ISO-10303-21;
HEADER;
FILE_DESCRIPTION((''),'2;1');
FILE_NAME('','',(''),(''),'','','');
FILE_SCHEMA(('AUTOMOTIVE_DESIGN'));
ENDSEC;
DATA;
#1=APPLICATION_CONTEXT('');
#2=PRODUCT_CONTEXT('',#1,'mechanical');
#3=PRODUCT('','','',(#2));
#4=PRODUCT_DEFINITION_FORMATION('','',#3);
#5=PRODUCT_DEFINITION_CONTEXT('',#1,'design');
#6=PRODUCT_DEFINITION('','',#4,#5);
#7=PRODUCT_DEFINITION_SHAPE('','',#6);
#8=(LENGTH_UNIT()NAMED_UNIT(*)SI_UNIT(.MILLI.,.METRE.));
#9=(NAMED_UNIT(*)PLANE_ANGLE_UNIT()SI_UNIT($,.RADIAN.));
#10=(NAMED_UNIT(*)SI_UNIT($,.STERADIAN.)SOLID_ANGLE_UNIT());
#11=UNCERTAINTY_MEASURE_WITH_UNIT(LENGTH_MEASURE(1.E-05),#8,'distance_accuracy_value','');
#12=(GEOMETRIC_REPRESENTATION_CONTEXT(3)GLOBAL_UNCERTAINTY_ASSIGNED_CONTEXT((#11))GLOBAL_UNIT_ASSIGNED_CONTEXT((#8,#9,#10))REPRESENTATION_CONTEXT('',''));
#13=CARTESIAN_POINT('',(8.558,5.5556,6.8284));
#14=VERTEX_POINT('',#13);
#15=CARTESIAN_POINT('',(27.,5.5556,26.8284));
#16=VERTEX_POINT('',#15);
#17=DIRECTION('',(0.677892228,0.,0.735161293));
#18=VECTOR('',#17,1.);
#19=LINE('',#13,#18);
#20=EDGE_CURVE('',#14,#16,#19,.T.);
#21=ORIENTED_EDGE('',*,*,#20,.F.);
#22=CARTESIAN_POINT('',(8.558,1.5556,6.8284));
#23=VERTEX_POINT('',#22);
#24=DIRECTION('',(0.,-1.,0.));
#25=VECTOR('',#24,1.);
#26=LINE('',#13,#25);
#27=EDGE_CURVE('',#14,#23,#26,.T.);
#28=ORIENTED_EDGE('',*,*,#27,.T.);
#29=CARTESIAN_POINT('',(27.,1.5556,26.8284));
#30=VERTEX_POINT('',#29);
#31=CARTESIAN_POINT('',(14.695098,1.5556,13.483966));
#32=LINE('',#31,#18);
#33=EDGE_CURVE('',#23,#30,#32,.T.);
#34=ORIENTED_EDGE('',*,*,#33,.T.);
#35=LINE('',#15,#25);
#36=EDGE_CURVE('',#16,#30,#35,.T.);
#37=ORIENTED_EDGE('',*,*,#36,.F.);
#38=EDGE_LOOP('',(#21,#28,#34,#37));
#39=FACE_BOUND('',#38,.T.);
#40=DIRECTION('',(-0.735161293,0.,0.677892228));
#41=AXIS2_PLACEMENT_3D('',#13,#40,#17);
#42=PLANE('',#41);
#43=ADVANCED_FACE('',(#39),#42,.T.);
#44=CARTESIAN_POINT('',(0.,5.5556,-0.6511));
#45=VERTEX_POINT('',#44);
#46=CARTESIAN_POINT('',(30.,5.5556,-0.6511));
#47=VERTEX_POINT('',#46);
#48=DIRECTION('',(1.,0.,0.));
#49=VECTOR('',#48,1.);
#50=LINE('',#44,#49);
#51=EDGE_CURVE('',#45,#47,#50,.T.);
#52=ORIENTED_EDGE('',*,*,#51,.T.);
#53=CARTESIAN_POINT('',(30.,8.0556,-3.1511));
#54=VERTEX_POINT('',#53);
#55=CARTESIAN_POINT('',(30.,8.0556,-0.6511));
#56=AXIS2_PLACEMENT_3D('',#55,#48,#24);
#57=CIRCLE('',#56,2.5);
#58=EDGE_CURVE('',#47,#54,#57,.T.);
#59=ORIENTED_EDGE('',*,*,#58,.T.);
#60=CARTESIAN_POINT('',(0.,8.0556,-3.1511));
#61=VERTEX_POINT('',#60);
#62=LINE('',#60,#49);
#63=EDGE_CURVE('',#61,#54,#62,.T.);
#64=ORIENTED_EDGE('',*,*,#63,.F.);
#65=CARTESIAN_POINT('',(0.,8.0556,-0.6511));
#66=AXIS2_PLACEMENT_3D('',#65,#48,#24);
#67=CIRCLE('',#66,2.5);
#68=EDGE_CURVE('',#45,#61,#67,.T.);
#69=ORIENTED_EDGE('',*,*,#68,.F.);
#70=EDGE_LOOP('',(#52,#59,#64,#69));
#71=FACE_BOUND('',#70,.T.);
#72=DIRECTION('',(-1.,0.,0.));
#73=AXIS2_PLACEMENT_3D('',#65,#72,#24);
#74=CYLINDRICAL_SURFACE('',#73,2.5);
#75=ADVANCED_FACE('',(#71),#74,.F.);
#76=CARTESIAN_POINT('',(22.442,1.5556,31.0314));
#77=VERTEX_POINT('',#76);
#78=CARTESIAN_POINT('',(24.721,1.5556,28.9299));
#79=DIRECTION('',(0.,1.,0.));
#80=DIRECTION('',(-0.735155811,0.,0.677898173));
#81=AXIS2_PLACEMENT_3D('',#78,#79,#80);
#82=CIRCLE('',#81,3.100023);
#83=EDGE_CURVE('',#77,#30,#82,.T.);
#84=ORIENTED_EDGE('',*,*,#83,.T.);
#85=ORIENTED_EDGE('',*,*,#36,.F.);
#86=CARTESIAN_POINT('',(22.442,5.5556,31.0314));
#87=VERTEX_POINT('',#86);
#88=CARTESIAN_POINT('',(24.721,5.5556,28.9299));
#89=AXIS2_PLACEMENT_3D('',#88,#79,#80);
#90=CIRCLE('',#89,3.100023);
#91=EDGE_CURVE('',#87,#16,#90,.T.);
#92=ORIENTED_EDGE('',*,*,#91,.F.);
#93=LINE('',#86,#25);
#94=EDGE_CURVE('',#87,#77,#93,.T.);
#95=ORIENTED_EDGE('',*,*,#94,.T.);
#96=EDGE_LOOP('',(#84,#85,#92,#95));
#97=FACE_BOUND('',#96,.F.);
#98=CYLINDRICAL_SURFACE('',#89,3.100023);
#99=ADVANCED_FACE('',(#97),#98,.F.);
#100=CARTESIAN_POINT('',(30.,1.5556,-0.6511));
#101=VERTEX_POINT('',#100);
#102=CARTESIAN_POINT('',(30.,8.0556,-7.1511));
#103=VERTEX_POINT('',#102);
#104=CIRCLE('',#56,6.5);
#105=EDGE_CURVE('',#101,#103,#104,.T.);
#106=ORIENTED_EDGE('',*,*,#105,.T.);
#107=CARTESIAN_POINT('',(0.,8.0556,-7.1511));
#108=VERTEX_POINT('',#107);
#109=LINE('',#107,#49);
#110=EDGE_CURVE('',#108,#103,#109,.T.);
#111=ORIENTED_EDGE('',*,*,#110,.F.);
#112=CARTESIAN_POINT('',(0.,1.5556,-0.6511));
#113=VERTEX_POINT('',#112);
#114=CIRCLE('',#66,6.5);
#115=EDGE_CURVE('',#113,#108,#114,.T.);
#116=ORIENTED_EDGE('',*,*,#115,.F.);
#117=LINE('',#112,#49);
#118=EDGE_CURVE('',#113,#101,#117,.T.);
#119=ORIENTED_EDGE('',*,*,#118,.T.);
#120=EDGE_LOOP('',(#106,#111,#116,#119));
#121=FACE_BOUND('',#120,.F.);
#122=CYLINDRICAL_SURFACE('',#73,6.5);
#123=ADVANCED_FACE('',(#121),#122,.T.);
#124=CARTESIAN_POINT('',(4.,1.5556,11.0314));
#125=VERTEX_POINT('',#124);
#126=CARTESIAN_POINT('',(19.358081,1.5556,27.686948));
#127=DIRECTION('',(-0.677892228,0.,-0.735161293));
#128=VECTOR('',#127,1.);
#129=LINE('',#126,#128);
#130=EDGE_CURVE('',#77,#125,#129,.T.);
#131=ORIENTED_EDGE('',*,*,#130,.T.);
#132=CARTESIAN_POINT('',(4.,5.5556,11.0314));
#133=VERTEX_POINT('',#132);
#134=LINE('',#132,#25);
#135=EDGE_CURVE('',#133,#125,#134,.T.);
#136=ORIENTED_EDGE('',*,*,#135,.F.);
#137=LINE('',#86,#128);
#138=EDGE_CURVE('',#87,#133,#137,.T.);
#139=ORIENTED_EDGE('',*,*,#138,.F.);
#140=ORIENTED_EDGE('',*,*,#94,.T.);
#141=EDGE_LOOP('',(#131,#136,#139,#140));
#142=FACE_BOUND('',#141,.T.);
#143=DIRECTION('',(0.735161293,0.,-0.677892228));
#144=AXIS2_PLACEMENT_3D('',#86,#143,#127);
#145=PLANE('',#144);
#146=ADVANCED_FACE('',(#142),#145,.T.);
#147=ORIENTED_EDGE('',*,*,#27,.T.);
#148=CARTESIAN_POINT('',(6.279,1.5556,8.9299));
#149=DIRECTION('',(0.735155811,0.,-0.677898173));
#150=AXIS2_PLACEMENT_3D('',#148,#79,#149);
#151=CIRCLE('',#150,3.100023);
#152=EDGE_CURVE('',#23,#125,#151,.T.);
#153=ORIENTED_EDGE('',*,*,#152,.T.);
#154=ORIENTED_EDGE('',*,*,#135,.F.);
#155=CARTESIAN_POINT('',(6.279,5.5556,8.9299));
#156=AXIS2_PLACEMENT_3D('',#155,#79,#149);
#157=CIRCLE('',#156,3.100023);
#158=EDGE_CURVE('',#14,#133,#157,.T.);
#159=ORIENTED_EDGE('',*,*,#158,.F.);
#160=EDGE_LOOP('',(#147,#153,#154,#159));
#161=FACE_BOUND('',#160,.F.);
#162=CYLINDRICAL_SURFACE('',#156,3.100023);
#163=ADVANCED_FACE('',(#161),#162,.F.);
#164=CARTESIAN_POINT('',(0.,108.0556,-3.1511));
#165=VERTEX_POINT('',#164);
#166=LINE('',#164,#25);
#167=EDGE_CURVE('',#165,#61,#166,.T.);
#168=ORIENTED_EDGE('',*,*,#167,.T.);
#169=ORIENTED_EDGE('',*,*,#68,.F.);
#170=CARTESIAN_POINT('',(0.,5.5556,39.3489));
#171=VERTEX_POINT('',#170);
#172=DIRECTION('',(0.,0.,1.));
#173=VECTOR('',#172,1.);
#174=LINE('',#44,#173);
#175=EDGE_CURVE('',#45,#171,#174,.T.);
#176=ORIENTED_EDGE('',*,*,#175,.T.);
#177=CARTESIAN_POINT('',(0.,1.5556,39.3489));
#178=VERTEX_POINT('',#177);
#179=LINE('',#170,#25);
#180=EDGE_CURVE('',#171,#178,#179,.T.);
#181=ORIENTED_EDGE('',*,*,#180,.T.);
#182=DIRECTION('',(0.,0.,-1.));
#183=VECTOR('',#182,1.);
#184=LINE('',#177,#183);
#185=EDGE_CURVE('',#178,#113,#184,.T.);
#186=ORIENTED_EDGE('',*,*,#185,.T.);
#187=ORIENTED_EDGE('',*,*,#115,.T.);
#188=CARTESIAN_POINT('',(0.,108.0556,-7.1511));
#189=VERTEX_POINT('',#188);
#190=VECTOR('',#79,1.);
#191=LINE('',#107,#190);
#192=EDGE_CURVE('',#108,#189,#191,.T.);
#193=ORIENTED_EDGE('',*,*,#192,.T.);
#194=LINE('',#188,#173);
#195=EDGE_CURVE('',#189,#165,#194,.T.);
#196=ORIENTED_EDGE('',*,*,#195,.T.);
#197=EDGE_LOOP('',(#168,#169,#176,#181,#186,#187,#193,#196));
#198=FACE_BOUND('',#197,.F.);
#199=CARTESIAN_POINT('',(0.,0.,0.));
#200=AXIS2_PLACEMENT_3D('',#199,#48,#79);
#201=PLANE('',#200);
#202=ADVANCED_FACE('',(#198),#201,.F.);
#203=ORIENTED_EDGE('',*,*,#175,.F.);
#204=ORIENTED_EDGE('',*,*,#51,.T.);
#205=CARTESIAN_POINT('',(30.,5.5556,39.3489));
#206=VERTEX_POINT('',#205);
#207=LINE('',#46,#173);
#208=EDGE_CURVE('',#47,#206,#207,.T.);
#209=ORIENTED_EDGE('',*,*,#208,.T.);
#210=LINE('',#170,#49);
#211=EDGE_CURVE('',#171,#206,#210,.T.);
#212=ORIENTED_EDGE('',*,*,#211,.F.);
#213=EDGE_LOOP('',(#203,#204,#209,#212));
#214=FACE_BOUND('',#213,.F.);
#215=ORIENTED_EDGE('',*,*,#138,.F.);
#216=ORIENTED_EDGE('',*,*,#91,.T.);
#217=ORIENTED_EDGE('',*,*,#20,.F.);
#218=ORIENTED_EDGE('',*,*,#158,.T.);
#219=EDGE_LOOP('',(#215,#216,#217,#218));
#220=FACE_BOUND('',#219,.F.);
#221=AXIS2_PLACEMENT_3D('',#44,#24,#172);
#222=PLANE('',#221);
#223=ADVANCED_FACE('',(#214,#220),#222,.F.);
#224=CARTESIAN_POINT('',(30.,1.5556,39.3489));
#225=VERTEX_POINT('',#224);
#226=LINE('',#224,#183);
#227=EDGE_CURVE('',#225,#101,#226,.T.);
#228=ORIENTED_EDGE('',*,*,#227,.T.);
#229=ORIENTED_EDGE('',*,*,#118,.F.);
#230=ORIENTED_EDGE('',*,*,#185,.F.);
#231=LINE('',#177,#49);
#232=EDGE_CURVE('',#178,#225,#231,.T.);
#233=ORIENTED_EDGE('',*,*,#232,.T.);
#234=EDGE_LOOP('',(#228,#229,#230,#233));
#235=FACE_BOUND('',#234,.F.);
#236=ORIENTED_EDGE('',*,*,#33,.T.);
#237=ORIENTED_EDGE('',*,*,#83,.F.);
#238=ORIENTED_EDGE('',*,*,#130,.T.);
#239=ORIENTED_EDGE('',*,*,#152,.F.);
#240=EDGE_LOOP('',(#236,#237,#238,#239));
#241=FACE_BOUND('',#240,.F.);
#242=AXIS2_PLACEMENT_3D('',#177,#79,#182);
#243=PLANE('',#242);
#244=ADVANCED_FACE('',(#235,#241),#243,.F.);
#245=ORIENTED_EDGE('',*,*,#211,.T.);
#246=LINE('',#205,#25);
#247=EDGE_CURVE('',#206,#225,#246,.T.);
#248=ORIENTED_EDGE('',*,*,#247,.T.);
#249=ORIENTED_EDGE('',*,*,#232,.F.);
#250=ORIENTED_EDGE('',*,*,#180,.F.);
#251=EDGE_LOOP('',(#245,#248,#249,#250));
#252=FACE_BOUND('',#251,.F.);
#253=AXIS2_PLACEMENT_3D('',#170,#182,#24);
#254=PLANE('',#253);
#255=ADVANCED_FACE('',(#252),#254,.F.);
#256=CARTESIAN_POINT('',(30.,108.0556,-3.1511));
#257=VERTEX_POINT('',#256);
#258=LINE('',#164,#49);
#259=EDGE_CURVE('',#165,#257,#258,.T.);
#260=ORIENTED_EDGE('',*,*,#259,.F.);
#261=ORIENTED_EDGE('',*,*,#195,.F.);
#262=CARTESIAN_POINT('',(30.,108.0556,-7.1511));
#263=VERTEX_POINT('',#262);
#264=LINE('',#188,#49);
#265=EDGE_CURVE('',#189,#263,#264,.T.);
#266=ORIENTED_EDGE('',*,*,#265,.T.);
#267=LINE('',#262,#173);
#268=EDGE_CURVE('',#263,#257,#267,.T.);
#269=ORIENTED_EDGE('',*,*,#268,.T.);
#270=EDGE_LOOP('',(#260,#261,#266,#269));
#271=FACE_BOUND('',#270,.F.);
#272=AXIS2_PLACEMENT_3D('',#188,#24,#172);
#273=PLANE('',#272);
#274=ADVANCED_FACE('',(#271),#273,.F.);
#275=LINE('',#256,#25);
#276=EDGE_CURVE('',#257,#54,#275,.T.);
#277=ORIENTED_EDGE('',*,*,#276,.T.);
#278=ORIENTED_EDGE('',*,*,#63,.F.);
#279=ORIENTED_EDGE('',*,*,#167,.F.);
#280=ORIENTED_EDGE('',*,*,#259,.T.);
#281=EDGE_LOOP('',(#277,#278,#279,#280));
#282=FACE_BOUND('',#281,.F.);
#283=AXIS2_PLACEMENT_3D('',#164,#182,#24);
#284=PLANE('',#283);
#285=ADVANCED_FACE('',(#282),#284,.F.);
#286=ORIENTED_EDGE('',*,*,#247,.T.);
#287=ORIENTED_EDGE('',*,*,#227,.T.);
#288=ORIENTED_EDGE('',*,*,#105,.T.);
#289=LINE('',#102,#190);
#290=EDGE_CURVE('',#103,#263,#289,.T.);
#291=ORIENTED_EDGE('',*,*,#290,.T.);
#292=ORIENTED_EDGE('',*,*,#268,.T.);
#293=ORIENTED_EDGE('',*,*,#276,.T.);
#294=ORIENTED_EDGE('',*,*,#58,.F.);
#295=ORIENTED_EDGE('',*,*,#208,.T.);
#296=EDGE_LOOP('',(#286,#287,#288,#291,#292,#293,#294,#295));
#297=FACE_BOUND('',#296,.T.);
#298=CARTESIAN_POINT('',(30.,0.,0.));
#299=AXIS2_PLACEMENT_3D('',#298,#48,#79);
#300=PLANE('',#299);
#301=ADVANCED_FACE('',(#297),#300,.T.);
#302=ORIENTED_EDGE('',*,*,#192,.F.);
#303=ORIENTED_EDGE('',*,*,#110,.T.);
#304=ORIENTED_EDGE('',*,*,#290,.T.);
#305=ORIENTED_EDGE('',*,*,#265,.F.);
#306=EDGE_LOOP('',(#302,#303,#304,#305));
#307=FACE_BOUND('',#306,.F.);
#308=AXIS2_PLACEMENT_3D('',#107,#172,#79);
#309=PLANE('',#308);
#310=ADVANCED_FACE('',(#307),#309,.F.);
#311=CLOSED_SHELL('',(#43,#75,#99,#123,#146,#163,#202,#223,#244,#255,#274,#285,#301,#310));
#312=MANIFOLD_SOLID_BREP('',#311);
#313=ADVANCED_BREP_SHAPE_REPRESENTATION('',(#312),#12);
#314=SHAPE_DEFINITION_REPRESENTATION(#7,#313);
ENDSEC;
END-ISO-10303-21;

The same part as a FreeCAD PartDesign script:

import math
import FreeCAD as App
import Part
import Sketcher
Q = App.Units.Quantity

doc = App.newDocument("Part")
body = doc.addObject("PartDesign::Body", "Body")

sketch1 = body.newObject("Sketcher::SketchObject", "Sketch")
sketch1.AttachmentSupport = (doc.getObject("YZ_Plane"), [""])
sketch1.MapMode = "FlatFace"
sketch1.addGeometry(Part.LineSegment(App.Vector(108.0556, -7.1511, 0), App.Vector(108.0556, -3.1511, 0)), False)
sketch1.addGeometry(Part.LineSegment(App.Vector(108.0556, -3.1511, 0), App.Vector(8.0556, -3.1511, 0)), False)
sketch1.addGeometry(Part.ArcOfCircle(Part.Circle(App.Vector(8.0556, -0.6511, 0), App.Vector(0, 0, 1), 2.5), math.radians(180), math.radians(270)), False)
sketch1.addGeometry(Part.LineSegment(App.Vector(5.5556, -0.6511, 0), App.Vector(5.5556, 39.3489, 0)), False)
sketch1.addGeometry(Part.LineSegment(App.Vector(5.5556, 39.3489, 0), App.Vector(1.5556, 39.3489, 0)), False)
sketch1.addGeometry(Part.LineSegment(App.Vector(1.5556, 39.3489, 0), App.Vector(1.5556, -0.6511, 0)), False)
sketch1.addGeometry(Part.ArcOfCircle(Part.Circle(App.Vector(8.0556, -0.6511, 0), App.Vector(0, 0, 1), 6.5), math.radians(180), math.radians(270)), False)
sketch1.addGeometry(Part.LineSegment(App.Vector(8.0556, -7.1511, 0), App.Vector(108.0556, -7.1511, 0)), False)
sketch1.addConstraint(Sketcher.Constraint("Coincident", 0, 2, 1, 1))
sketch1.addConstraint(Sketcher.Constraint("Tangent", 1, 2, 2, 2))
sketch1.addConstraint(Sketcher.Constraint("Tangent", 2, 1, 3, 1))
sketch1.addConstraint(Sketcher.Constraint("Coincident", 3, 2, 4, 1))
sketch1.addConstraint(Sketcher.Constraint("Coincident", 4, 2, 5, 1))
sketch1.addConstraint(Sketcher.Constraint("Tangent", 5, 2, 6, 1))
sketch1.addConstraint(Sketcher.Constraint("Tangent", 6, 2, 7, 1))
sketch1.addConstraint(Sketcher.Constraint("Coincident", 7, 2, 0, 1))
sketch1.addConstraint(Sketcher.Constraint("Vertical", 0))
sketch1.addConstraint(Sketcher.Constraint("Horizontal", 1))
sketch1.addConstraint(Sketcher.Constraint("Vertical", 3))
sketch1.addConstraint(Sketcher.Constraint("Horizontal", 4))
sketch1.addConstraint(Sketcher.Constraint("Vertical", 5))
sketch1.addConstraint(Sketcher.Constraint("Horizontal", 7))
sketch1.addConstraint(Sketcher.Constraint("Coincident", 6, 3, 2, 3))
sketch1.addConstraint(Sketcher.Constraint("Radius", 2, Q("2.5 mm")))
sketch1.addConstraint(Sketcher.Constraint("Radius", 6, Q("6.5 mm")))
sketch1.addConstraint(Sketcher.Constraint("DistanceX", 1, 2, 1, 1, Q("100 mm")))
sketch1.addConstraint(Sketcher.Constraint("DistanceY", 3, 1, 3, 2, Q("40 mm")))
sketch1.addConstraint(Sketcher.Constraint("DistanceY", 2, 3, -1, 1, Q("0.651 mm")))
sketch1.addConstraint(Sketcher.Constraint("DistanceX", -1, 1, 2, 3, Q("8.0556 mm")))
pad1 = body.newObject("PartDesign::Pad", "Pad")
pad1.Profile = sketch1
pad1.Length = 30

sketch2 = body.newObject("Sketcher::SketchObject", "Sketch001")
sketch2.AttachmentSupport = (doc.getObject("XZ_Plane"), [""])
sketch2.MapMode = "FlatFace"
sketch2.AttachmentOffset = App.Placement(App.Vector(0, 0, -5.5556), App.Rotation())
sketch2.addGeometry(Part.LineSegment(App.Vector(27, 26.8284, 0), App.Vector(8.558, 6.8284, 0)), False)
sketch2.addGeometry(Part.ArcOfCircle(Part.Circle(App.Vector(6.279, 8.9299, 0), App.Vector(0, 0, 1), 3.100023), math.radians(137.320384), math.radians(317.320384)), False)
sketch2.addGeometry(Part.LineSegment(App.Vector(4, 11.0314, 0), App.Vector(22.442, 31.0314, 0)), False)
sketch2.addGeometry(Part.ArcOfCircle(Part.Circle(App.Vector(24.721, 28.9299, 0), App.Vector(0, 0, 1), 3.100023), math.radians(-42.679616), math.radians(137.320384)), False)
sketch2.addConstraint(Sketcher.Constraint("Tangent", 0, 2, 1, 2))
sketch2.addConstraint(Sketcher.Constraint("Tangent", 1, 1, 2, 1))
sketch2.addConstraint(Sketcher.Constraint("Tangent", 2, 2, 3, 2))
sketch2.addConstraint(Sketcher.Constraint("Tangent", 3, 1, 0, 1))
sketch2.addConstraint(Sketcher.Constraint("Equal", 1, 3))
sketch2.addConstraint(Sketcher.Constraint("Radius", 1, Q("3.1 mm")))
sketch2.addConstraint(Sketcher.Constraint("DistanceX", -1, 1, 1, 1, Q("4 mm")))
sketch2.addConstraint(Sketcher.Constraint("DistanceY", 1, 3, 3, 3, Q("20 mm")))
sketch2.addConstraint(Sketcher.Constraint("DistanceX", -1, 1, 3, 1, Q("27 mm")))
sketch2.addConstraint(Sketcher.Constraint("DistanceY", -1, 1, 1, 3, Q("8.93 mm")))
pocket1 = body.newObject("PartDesign::Pocket", "Pocket")
pocket1.Profile = sketch2
pocket1.Length = 30
pocket1.Reversed = True

doc.recompute()
